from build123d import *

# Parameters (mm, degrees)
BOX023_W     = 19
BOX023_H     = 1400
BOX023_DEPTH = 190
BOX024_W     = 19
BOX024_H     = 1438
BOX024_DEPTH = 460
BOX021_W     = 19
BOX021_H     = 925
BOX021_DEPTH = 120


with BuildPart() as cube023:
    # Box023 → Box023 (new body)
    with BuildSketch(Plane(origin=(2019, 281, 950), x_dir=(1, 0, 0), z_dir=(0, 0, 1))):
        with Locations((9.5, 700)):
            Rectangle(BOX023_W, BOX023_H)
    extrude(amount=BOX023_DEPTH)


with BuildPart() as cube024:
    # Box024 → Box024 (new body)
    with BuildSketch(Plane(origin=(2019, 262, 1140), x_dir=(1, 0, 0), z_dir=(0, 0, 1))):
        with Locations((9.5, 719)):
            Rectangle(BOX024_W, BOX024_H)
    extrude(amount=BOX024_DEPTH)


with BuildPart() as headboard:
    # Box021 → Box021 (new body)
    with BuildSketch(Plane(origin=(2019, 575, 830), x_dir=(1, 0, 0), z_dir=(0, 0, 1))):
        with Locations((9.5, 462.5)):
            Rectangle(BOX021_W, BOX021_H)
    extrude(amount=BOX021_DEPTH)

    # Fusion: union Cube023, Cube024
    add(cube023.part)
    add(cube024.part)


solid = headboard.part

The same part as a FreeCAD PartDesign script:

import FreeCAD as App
import Part
import Sketcher
from FreeCAD import Vector

doc = App.newDocument("Part")
body = doc.addObject("PartDesign::Body", "Body")

sketch1 = body.newObject("Sketcher::SketchObject", "Sketch")
sketch1.AttachmentSupport = (doc.getObject("XY_Plane"), [""])
sketch1.MapMode = "FlatFace"
sketch1.AttachmentOffset = App.Placement(Vector(0, 0, 950), App.Rotation())
sketch1.addGeometry(Part.LineSegment(Vector(2019, 1681, 0), Vector(2019, 281, 0)), False)
sketch1.addGeometry(Part.LineSegment(Vector(2019, 281, 0), Vector(2038, 281, 0)), False)
sketch1.addGeometry(Part.LineSegment(Vector(2038, 281, 0), Vector(2038, 1681, 0)), False)
sketch1.addGeometry(Part.LineSegment(Vector(2038, 1681, 0), Vector(2019, 1681, 0)), False)
sketch1.addConstraint(Sketcher.Constraint("Coincident", 0, 2, 1, 1))
sketch1.addConstraint(Sketcher.Constraint("Coincident", 1, 2, 2, 1))
sketch1.addConstraint(Sketcher.Constraint("Coincident", 2, 2, 3, 1))
sketch1.addConstraint(Sketcher.Constraint("Coincident", 3, 2, 0, 1))
sketch1.addConstraint(Sketcher.Constraint("Vertical", 0))
sketch1.addConstraint(Sketcher.Constraint("Horizontal", 1))
sketch1.addConstraint(Sketcher.Constraint("Vertical", 2))
sketch1.addConstraint(Sketcher.Constraint("Horizontal", 3))
sketch1.addConstraint(Sketcher.Constraint("DistanceX", 1, 1, 1, 2, 19.0))
sketch1.addConstraint(Sketcher.Constraint("DistanceY", 0, 2, 0, 1, 1400.0))
sketch1.addConstraint(Sketcher.Constraint("DistanceX", -1, 1, 0, 2, 2019.0))
sketch1.addConstraint(Sketcher.Constraint("DistanceY", -1, 1, 0, 2, 281.0))
pad1 = body.newObject("PartDesign::Pad", "Pad")
pad1.Profile = sketch1
pad1.Length = 190
body2 = doc.addObject("PartDesign::Body", "Body001")

sketch2 = body2.newObject("Sketcher::SketchObject", "Sketch001")
sketch2.AttachmentSupport = (doc.getObject("XY_Plane001"), [""])
sketch2.MapMode = "FlatFace"
sketch2.AttachmentOffset = App.Placement(Vector(0, 0, 1140), App.Rotation())
sketch2.addGeometry(Part.LineSegment(Vector(2019, 1700, 0), Vector(2019, 262, 0)), False)
sketch2.addGeometry(Part.LineSegment(Vector(2019, 262, 0), Vector(2038, 262, 0)), False)
sketch2.addGeometry(Part.LineSegment(Vector(2038, 262, 0), Vector(2038, 1700, 0)), False)
sketch2.addGeometry(Part.LineSegment(Vector(2038, 1700, 0), Vector(2019, 1700, 0)), False)
sketch2.addConstraint(Sketcher.Constraint("Coincident", 0, 2, 1, 1))
sketch2.addConstraint(Sketcher.Constraint("Coincident", 1, 2, 2, 1))
sketch2.addConstraint(Sketcher.Constraint("Coincident", 2, 2, 3, 1))
sketch2.addConstraint(Sketcher.Constraint("Coincident", 3, 2, 0, 1))
sketch2.addConstraint(Sketcher.Constraint("Vertical", 0))
sketch2.addConstraint(Sketcher.Constraint("Horizontal", 1))
sketch2.addConstraint(Sketcher.Constraint("Vertical", 2))
sketch2.addConstraint(Sketcher.Constraint("Horizontal", 3))
sketch2.addConstraint(Sketcher.Constraint("DistanceX", 1, 1, 1, 2, 19.0))
sketch2.addConstraint(Sketcher.Constraint("DistanceY", 0, 2, 0, 1, 1438.0))
sketch2.addConstraint(Sketcher.Constraint("DistanceX", -1, 1, 0, 2, 2019.0))
sketch2.addConstraint(Sketcher.Constraint("DistanceY", -1, 1, 0, 2, 262.0))
pad2 = body2.newObject("PartDesign::Pad", "Pad001")
pad2.Profile = sketch2
pad2.Length = 460
body3 = doc.addObject("PartDesign::Body", "Body002")

sketch3 = body3.newObject("Sketcher::SketchObject", "Sketch002")
sketch3.AttachmentSupport = (doc.getObject("XY_Plane002"), [""])
sketch3.MapMode = "FlatFace"
sketch3.AttachmentOffset = App.Placement(Vector(0, 0, 830), App.Rotation())
sketch3.addGeometry(Part.LineSegment(Vector(2019, 1500, 0), Vector(2019, 575, 0)), False)
sketch3.addGeometry(Part.LineSegment(Vector(2019, 575, 0), Vector(2038, 575, 0)), False)
sketch3.addGeometry(Part.LineSegment(Vector(2038, 575, 0), Vector(2038, 1500, 0)), False)
sketch3.addGeometry(Part.LineSegment(Vector(2038, 1500, 0), Vector(2019, 1500, 0)), False)
sketch3.addConstraint(Sketcher.Constraint("Coincident", 0, 2, 1, 1))
sketch3.addConstraint(Sketcher.Constraint("Coincident", 1, 2, 2, 1))
sketch3.addConstraint(Sketcher.Constraint("Coincident", 2, 2, 3, 1))
sketch3.addConstraint(Sketcher.Constraint("Coincident", 3, 2, 0, 1))
sketch3.addConstraint(Sketcher.Constraint("Vertical", 0))
sketch3.addConstraint(Sketcher.Constraint("Horizontal", 1))
sketch3.addConstraint(Sketcher.Constraint("Vertical", 2))
sketch3.addConstraint(Sketcher.Constraint("Horizontal", 3))
sketch3.addConstraint(Sketcher.Constraint("DistanceX", 1, 1, 1, 2, 19.0))
sketch3.addConstraint(Sketcher.Constraint("DistanceY", 0, 2, 0, 1, 925.0))
sketch3.addConstraint(Sketcher.Constraint("DistanceX", -1, 1, 0, 2, 2019.0))
sketch3.addConstraint(Sketcher.Constraint("DistanceY", -1, 1, 0, 2, 575.0))
pad3 = body3.newObject("PartDesign::Pad", "Pad002")
pad3.Profile = sketch3
pad3.Length = 120
doc.recompute()

boolean = body3.newObject("PartDesign::Boolean", "Boolean")
boolean.Type = "Fuse"
boolean.addObjects([body])
doc.recompute()

boolean2 = body3.newObject("PartDesign::Boolean", "Boolean001")
boolean2.Type = "Fuse"
boolean2.addObjects([body2])

doc.recompute()
